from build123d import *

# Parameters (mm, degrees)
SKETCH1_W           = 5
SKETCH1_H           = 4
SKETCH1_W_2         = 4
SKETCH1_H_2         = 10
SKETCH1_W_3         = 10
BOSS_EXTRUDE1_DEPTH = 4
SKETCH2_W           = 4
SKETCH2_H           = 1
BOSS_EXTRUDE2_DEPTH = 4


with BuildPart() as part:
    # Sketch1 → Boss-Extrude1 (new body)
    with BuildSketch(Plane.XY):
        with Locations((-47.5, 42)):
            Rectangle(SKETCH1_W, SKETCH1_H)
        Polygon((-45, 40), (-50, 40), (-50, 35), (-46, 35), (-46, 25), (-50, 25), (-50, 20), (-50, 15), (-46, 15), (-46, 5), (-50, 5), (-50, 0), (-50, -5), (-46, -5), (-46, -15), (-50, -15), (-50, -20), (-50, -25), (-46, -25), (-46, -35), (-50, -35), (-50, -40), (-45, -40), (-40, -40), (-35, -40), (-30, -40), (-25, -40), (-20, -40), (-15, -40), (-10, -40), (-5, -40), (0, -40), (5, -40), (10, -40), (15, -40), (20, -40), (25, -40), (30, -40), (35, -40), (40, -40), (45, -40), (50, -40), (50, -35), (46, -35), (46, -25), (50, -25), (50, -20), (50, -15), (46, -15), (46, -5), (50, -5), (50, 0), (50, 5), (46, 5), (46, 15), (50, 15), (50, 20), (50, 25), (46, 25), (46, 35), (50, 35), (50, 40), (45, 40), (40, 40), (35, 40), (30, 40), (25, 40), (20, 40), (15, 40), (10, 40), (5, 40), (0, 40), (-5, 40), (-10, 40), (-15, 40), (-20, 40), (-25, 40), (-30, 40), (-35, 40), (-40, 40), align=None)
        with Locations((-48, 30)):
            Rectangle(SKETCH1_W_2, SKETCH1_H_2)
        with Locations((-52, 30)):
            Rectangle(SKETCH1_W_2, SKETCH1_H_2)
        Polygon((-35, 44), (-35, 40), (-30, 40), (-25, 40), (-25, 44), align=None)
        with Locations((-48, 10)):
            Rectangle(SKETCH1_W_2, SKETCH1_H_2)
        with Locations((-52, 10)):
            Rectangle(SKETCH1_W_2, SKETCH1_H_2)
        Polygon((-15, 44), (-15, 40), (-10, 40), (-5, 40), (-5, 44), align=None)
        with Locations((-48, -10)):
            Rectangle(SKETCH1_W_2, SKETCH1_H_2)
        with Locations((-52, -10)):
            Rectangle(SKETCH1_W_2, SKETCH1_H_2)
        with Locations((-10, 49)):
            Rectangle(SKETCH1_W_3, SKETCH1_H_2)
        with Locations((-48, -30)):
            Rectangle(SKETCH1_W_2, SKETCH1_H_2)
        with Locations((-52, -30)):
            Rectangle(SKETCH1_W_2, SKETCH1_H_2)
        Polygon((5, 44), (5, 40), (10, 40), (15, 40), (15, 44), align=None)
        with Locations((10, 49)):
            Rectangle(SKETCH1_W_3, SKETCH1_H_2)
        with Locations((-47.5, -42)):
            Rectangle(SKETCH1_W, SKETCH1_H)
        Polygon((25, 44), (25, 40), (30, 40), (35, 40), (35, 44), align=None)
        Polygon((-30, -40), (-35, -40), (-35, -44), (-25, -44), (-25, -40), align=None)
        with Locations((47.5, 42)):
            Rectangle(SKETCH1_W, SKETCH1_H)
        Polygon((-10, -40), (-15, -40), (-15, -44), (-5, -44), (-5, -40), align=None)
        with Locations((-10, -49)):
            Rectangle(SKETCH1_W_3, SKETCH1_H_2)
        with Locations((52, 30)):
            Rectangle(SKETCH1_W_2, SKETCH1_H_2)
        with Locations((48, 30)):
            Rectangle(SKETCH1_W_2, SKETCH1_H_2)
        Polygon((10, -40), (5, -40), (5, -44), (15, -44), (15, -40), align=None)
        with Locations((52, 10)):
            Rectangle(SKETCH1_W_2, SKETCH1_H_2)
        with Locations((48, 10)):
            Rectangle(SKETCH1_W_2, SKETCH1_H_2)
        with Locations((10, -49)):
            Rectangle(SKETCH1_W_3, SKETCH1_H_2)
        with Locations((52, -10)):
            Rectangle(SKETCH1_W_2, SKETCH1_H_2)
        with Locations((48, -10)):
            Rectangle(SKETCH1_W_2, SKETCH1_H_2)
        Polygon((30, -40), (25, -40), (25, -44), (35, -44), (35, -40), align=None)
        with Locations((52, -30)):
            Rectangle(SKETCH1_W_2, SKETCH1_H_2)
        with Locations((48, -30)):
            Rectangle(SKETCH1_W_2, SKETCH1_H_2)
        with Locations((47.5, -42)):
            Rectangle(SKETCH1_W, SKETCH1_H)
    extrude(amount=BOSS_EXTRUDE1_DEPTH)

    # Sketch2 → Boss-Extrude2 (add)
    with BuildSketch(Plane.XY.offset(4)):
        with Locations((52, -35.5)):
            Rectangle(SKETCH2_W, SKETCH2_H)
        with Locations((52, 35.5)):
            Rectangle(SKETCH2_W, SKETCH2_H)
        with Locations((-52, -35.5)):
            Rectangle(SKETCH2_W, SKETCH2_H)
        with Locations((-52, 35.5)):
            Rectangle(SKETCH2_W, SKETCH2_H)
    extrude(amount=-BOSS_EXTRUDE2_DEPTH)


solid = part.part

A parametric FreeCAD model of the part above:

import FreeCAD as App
import Part
import Sketcher

V = App.Vector
Q = App.Units.Quantity

doc = App.newDocument("Part")
body = doc.addObject("PartDesign::Body", "Body")

sketch1 = body.newObject("Sketcher::SketchObject", "Sketch")
sketch1.AttachmentSupport = (doc.getObject("XY_Plane"), [""])
sketch1.MapMode = "FlatFace"
sketch1.addGeometry([
    Part.LineSegment(V(-50, 44, 0), V(-50, 35, 0)),
    Part.LineSegment(V(-50, 35, 0), V(-54, 35, 0)),
    Part.LineSegment(V(-54, 35, 0), V(-54, 25, 0)),
    Part.LineSegment(V(-54, 25, 0), V(-50, 25, 0)),
    Part.LineSegment(V(-50, 25, 0), V(-50, 15, 0)),
    Part.LineSegment(V(-50, 15, 0), V(-54, 15, 0)),
    Part.LineSegment(V(-54, 15, 0), V(-54, 5, 0)),
    Part.LineSegment(V(-54, 5, 0), V(-50, 5, 0)),
    Part.LineSegment(V(-50, 5, 0), V(-50, -5, 0)),
    Part.LineSegment(V(-50, -5, 0), V(-54, -5, 0)),
    Part.LineSegment(V(-54, -5, 0), V(-54, -15, 0)),
    Part.LineSegment(V(-54, -15, 0), V(-50, -15, 0)),
    Part.LineSegment(V(-50, -15, 0), V(-50, -25, 0)),
    Part.LineSegment(V(-50, -25, 0), V(-54, -25, 0)),
    Part.LineSegment(V(-54, -25, 0), V(-54, -35, 0)),
    Part.LineSegment(V(-54, -35, 0), V(-50, -35, 0)),
    Part.LineSegment(V(-50, -35, 0), V(-50, -44, 0)),
    Part.LineSegment(V(-50, -44, 0), V(-45, -44, 0)),
    Part.LineSegment(V(-45, -44, 0), V(-45, -40, 0)),
    Part.LineSegment(V(-45, -40, 0), V(-35, -40, 0)),
    Part.LineSegment(V(-35, -40, 0), V(-35, -44, 0)),
    Part.LineSegment(V(-35, -44, 0), V(-25, -44, 0)),
    Part.LineSegment(V(-25, -44, 0), V(-25, -40, 0)),
    Part.LineSegment(V(-25, -40, 0), V(-15, -40, 0)),
    Part.LineSegment(V(-15, -40, 0), V(-15, -54, 0)),
    Part.LineSegment(V(-15, -54, 0), V(-5, -54, 0)),
    Part.LineSegment(V(-5, -54, 0), V(-5, -40, 0)),
    Part.LineSegment(V(-5, -40, 0), V(5, -40, 0)),
    Part.LineSegment(V(5, -40, 0), V(5, -54, 0)),
    Part.LineSegment(V(5, -54, 0), V(15, -54, 0)),
    Part.LineSegment(V(15, -54, 0), V(15, -40, 0)),
    Part.LineSegment(V(15, -40, 0), V(25, -40, 0)),
    Part.LineSegment(V(25, -40, 0), V(25, -44, 0)),
    Part.LineSegment(V(25, -44, 0), V(35, -44, 0)),
    Part.LineSegment(V(35, -44, 0), V(35, -40, 0)),
    Part.LineSegment(V(35, -40, 0), V(45, -40, 0)),
    Part.LineSegment(V(45, -40, 0), V(45, -44, 0)),
    Part.LineSegment(V(45, -44, 0), V(50, -44, 0)),
    Part.LineSegment(V(50, -44, 0), V(50, -35, 0)),
    Part.LineSegment(V(50, -35, 0), V(54, -35, 0)),
    Part.LineSegment(V(54, -35, 0), V(54, -25, 0)),
    Part.LineSegment(V(54, -25, 0), V(50, -25, 0)),
    Part.LineSegment(V(50, -25, 0), V(50, -15, 0)),
    Part.LineSegment(V(50, -15, 0), V(54, -15, 0)),
    Part.LineSegment(V(54, -15, 0), V(54, -5, 0)),
    Part.LineSegment(V(54, -5, 0), V(50, -5, 0)),
    Part.LineSegment(V(50, -5, 0), V(50, 5, 0)),
    Part.LineSegment(V(50, 5, 0), V(54, 5, 0)),
    Part.LineSegment(V(54, 5, 0), V(54, 15, 0)),
    Part.LineSegment(V(54, 15, 0), V(50, 15, 0)),
    Part.LineSegment(V(50, 15, 0), V(50, 25, 0)),
    Part.LineSegment(V(50, 25, 0), V(54, 25, 0)),
    Part.LineSegment(V(54, 25, 0), V(54, 35, 0)),
    Part.LineSegment(V(54, 35, 0), V(50, 35, 0)),
    Part.LineSegment(V(50, 35, 0), V(50, 44, 0)),
    Part.LineSegment(V(50, 44, 0), V(45, 44, 0)),
    Part.LineSegment(V(45, 44, 0), V(45, 40, 0)),
    Part.LineSegment(V(45, 40, 0), V(35, 40, 0)),
    Part.LineSegment(V(35, 40, 0), V(35, 44, 0)),
    Part.LineSegment(V(35, 44, 0), V(25, 44, 0)),
    Part.LineSegment(V(25, 44, 0), V(25, 40, 0)),
    Part.LineSegment(V(25, 40, 0), V(15, 40, 0)),
    Part.LineSegment(V(15, 40, 0), V(15, 54, 0)),
    Part.LineSegment(V(15, 54, 0), V(5, 54, 0)),
    Part.LineSegment(V(5, 54, 0), V(5, 40, 0)),
    Part.LineSegment(V(5, 40, 0), V(-5, 40, 0)),
    Part.LineSegment(V(-5, 40, 0), V(-5, 54, 0)),
    Part.LineSegment(V(-5, 54, 0), V(-15, 54, 0)),
    Part.LineSegment(V(-15, 54, 0), V(-15, 40, 0)),
    Part.LineSegment(V(-15, 40, 0), V(-25, 40, 0)),
    Part.LineSegment(V(-25, 40, 0), V(-25, 44, 0)),
    Part.LineSegment(V(-25, 44, 0), V(-35, 44, 0)),
    Part.LineSegment(V(-35, 44, 0), V(-35, 40, 0)),
    Part.LineSegment(V(-35, 40, 0), V(-45, 40, 0)),
    Part.LineSegment(V(-45, 40, 0), V(-45, 44, 0)),
    Part.LineSegment(V(-45, 44, 0), V(-50, 44, 0)),
], False)
sketch1.addConstraint([
    Sketcher.Constraint("Coincident", 0, 2, 1, 1),
    Sketcher.Constraint("Coincident", 1, 2, 2, 1),
    Sketcher.Constraint("Coincident", 2, 2, 3, 1),
    Sketcher.Constraint("Coincident", 3, 2, 4, 1),
    Sketcher.Constraint("Coincident", 4, 2, 5, 1),
    Sketcher.Constraint("Coincident", 5, 2, 6, 1),
    Sketcher.Constraint("Coincident", 6, 2, 7, 1),
    Sketcher.Constraint("Coincident", 7, 2, 8, 1),
    Sketcher.Constraint("Coincident", 8, 2, 9, 1),
    Sketcher.Constraint("Coincident", 9, 2, 10, 1),
    Sketcher.Constraint("Coincident", 10, 2, 11, 1),
    Sketcher.Constraint("Coincident", 11, 2, 12, 1),
    Sketcher.Constraint("Coincident", 12, 2, 13, 1),
    Sketcher.Constraint("Coincident", 13, 2, 14, 1),
    Sketcher.Constraint("Coincident", 14, 2, 15, 1),
    Sketcher.Constraint("Coincident", 15, 2, 16, 1),
    Sketcher.Constraint("Coincident", 16, 2, 17, 1),
    Sketcher.Constraint("Coincident", 17, 2, 18, 1),
    Sketcher.Constraint("Coincident", 18, 2, 19, 1),
    Sketcher.Constraint("Coincident", 19, 2, 20, 1),
    Sketcher.Constraint("Coincident", 20, 2, 21, 1),
    Sketcher.Constraint("Coincident", 21, 2, 22, 1),
    Sketcher.Constraint("Coincident", 22, 2, 23, 1),
    Sketcher.Constraint("Coincident", 23, 2, 24, 1),
    Sketcher.Constraint("Coincident", 24, 2, 25, 1),
    Sketcher.Constraint("Coincident", 25, 2, 26, 1),
    Sketcher.Constraint("Coincident", 26, 2, 27, 1),
    Sketcher.Constraint("Coincident", 27, 2, 28, 1),
    Sketcher.Constraint("Coincident", 28, 2, 29, 1),
    Sketcher.Constraint("Coincident", 29, 2, 30, 1),
    Sketcher.Constraint("Coincident", 30, 2, 31, 1),
    Sketcher.Constraint("Coincident", 31, 2, 32, 1),
    Sketcher.Constraint("Coincident", 32, 2, 33, 1),
    Sketcher.Constraint("Coincident", 33, 2, 34, 1),
    Sketcher.Constraint("Coincident", 34, 2, 35, 1),
    Sketcher.Constraint("Coincident", 35, 2, 36, 1),
    Sketcher.Constraint("Coincident", 36, 2, 37, 1),
    Sketcher.Constraint("Coincident", 37, 2, 38, 1),
    Sketcher.Constraint("Coincident", 38, 2, 39, 1),
    Sketcher.Constraint("Coincident", 39, 2, 40, 1),
    Sketcher.Constraint("Coincident", 40, 2, 41, 1),
    Sketcher.Constraint("Coincident", 41, 2, 42, 1),
    Sketcher.Constraint("Coincident", 42, 2, 43, 1),
    Sketcher.Constraint("Coincident", 43, 2, 44, 1),
    Sketcher.Constraint("Coincident", 44, 2, 45, 1),
    Sketcher.Constraint("Coincident", 45, 2, 46, 1),
    Sketcher.Constraint("Coincident", 46, 2, 47, 1),
    Sketcher.Constraint("Coincident", 47, 2, 48, 1),
    Sketcher.Constraint("Coincident", 48, 2, 49, 1),
    Sketcher.Constraint("Coincident", 49, 2, 50, 1),
    Sketcher.Constraint("Coincident", 50, 2, 51, 1),
    Sketcher.Constraint("Coincident", 51, 2, 52, 1),
    Sketcher.Constraint("Coincident", 52, 2, 53, 1),
    Sketcher.Constraint("Coincident", 53, 2, 54, 1),
    Sketcher.Constraint("Coincident", 54, 2, 55, 1),
    Sketcher.Constraint("Coincident", 55, 2, 56, 1),
    Sketcher.Constraint("Coincident", 56, 2, 57, 1),
    Sketcher.Constraint("Coincident", 57, 2, 58, 1),
    Sketcher.Constraint("Coincident", 58, 2, 59, 1),
    Sketcher.Constraint("Coincident", 59, 2, 60, 1),
    Sketcher.Constraint("Coincident", 60, 2, 61, 1),
    Sketcher.Constraint("Coincident", 61, 2, 62, 1),
    Sketcher.Constraint("Coincident", 62, 2, 63, 1),
    Sketcher.Constraint("Coincident", 63, 2, 64, 1),
    Sketcher.Constraint("Coincident", 64, 2, 65, 1),
    Sketcher.Constraint("Coincident", 65, 2, 66, 1),
    Sketcher.Constraint("Coincident", 66, 2, 67, 1),
    Sketcher.Constraint("Coincident", 67, 2, 68, 1),
    Sketcher.Constraint("Coincident", 68, 2, 69, 1),
    Sketcher.Constraint("Coincident", 69, 2, 70, 1),
    Sketcher.Constraint("Coincident", 70, 2, 71, 1),
    Sketcher.Constraint("Coincident", 71, 2, 72, 1),
    Sketcher.Constraint("Coincident", 72, 2, 73, 1),
    Sketcher.Constraint("Coincident", 73, 2, 74, 1),
    Sketcher.Constraint("Coincident", 74, 2, 75, 1),
    Sketcher.Constraint("Coincident", 75, 2, 0, 1),
    Sketcher.Constraint("Vertical", 0),
    Sketcher.Constraint("Horizontal", 1),
    Sketcher.Constraint("Vertical", 2),
    Sketcher.Constraint("Horizontal", 3),
    Sketcher.Constraint("Vertical", 4),
    Sketcher.Constraint("Horizontal", 5),
    Sketcher.Constraint("Vertical", 6),
    Sketcher.Constraint("Horizontal", 7),
    Sketcher.Constraint("Vertical", 8),
    Sketcher.Constraint("Horizontal", 9),
    Sketcher.Constraint("Vertical", 10),
    Sketcher.Constraint("Horizontal", 11),
    Sketcher.Constraint("Vertical", 12),
    Sketcher.Constraint("Horizontal", 13),
    Sketcher.Constraint("Vertical", 14),
    Sketcher.Constraint("Horizontal", 15),
    Sketcher.Constraint("Vertical", 16),
    Sketcher.Constraint("Horizontal", 17),
    Sketcher.Constraint("Vertical", 18),
    Sketcher.Constraint("Horizontal", 19),
    Sketcher.Constraint("Vertical", 20),
    Sketcher.Constraint("Horizontal", 21),
    Sketcher.Constraint("Vertical", 22),
    Sketcher.Constraint("Horizontal", 23),
    Sketcher.Constraint("Vertical", 24),
    Sketcher.Constraint("Horizontal", 25),
    Sketcher.Constraint("Vertical", 26),
    Sketcher.Constraint("Horizontal", 27),
    Sketcher.Constraint("Vertical", 28),
    Sketcher.Constraint("Horizontal", 29),
    Sketcher.Constraint("Vertical", 30),
    Sketcher.Constraint("Horizontal", 31),
    Sketcher.Constraint("Vertical", 32),
    Sketcher.Constraint("Horizontal", 33),
    Sketcher.Constraint("Vertical", 34),
    Sketcher.Constraint("Horizontal", 35),
    Sketcher.Constraint("Vertical", 36),
    Sketcher.Constraint("Horizontal", 37),
    Sketcher.Constraint("Vertical", 38),
    Sketcher.Constraint("Horizontal", 39),
    Sketcher.Constraint("Vertical", 40),
    Sketcher.Constraint("Horizontal", 41),
    Sketcher.Constraint("Vertical", 42),
    Sketcher.Constraint("Horizontal", 43),
    Sketcher.Constraint("Vertical", 44),
    Sketcher.Constraint("Horizontal", 45),
    Sketcher.Constraint("Vertical", 46),
    Sketcher.Constraint("Horizontal", 47),
    Sketcher.Constraint("Vertical", 48),
    Sketcher.Constraint("Horizontal", 49),
    Sketcher.Constraint("Vertical", 50),
    Sketcher.Constraint("Horizontal", 51),
    Sketcher.Constraint("Vertical", 52),
    Sketcher.Constraint("Horizontal", 53),
    Sketcher.Constraint("Vertical", 54),
    Sketcher.Constraint("Horizontal", 55),
    Sketcher.Constraint("Vertical", 56),
    Sketcher.Constraint("Horizontal", 57),
    Sketcher.Constraint("Vertical", 58),
    Sketcher.Constraint("Horizontal", 59),
    Sketcher.Constraint("Vertical", 60),
    Sketcher.Constraint("Horizontal", 61),
    Sketcher.Constraint("Vertical", 62),
    Sketcher.Constraint("Horizontal", 63),
    Sketcher.Constraint("Vertical", 64),
    Sketcher.Constraint("Horizontal", 65),
    Sketcher.Constraint("Vertical", 66),
    Sketcher.Constraint("Horizontal", 67),
    Sketcher.Constraint("Vertical", 68),
    Sketcher.Constraint("Horizontal", 69),
    Sketcher.Constraint("Vertical", 70),
    Sketcher.Constraint("Horizontal", 71),
    Sketcher.Constraint("Vertical", 72),
    Sketcher.Constraint("Horizontal", 73),
    Sketcher.Constraint("Vertical", 74),
    Sketcher.Constraint("Horizontal", 75),
    Sketcher.Constraint("Symmetric", 0, 2, 38, 2, -1, 1),
    Sketcher.Constraint("Symmetric", 2, 2, 40, 2, -1, 1),
    Sketcher.Constraint("Symmetric", 4, 2, 42, 2, -1, 1),
    Sketcher.Constraint("Symmetric", 6, 2, 44, 2, -1, 1),
    Sketcher.Constraint("Symmetric", 8, 2, 46, 2, -1, 1),
    Sketcher.Constraint("Symmetric", 10, 2, 48, 2, -1, 1),
    Sketcher.Constraint("Symmetric", 12, 2, 50, 2, -1, 1),
    Sketcher.Constraint("Symmetric", 14, 2, 52, 2, -1, 1),
    Sketcher.Constraint("Symmetric", 16, 2, 54, 2, -1, 1),
    Sketcher.Constraint("Symmetric", 18, 2, 56, 2, -1, 1),
    Sketcher.Constraint("Symmetric", 20, 2, 58, 2, -1, 1),
    Sketcher.Constraint("Symmetric", 22, 2, 60, 2, -1, 1),
    Sketcher.Constraint("Symmetric", 24, 2, 62, 2, -1, 1),
    Sketcher.Constraint("Symmetric", 26, 2, 64, 2, -1, 1),
    Sketcher.Constraint("Symmetric", 28, 2, 66, 2, -1, 1),
    Sketcher.Constraint("Symmetric", 30, 2, 68, 2, -1, 1),
    Sketcher.Constraint("Symmetric", 32, 2, 70, 2, -1, 1),
    Sketcher.Constraint("Symmetric", 34, 2, 72, 2, -1, 1),
    Sketcher.Constraint("Symmetric", 36, 2, 74, 2, -1, 1),
    Sketcher.Constraint("Symmetric", 25, 2, 28, 2, -2),
    Sketcher.Constraint("Symmetric", 23, 2, 30, 2, -2),
    Sketcher.Constraint("Symmetric", 21, 2, 32, 2, -2),
    Sketcher.Constraint("Symmetric", 19, 2, 34, 2, -2),
    Sketcher.Constraint("Symmetric", 17, 2, 36, 2, -2),
    Sketcher.Constraint("Symmetric", 15, 2, 38, 2, -2),
    Sketcher.Constraint("Symmetric", 13, 2, 40, 2, -2),
    Sketcher.Constraint("Symmetric", 11, 2, 42, 2, -2),
    Sketcher.Constraint("Symmetric", 9, 2, 44, 2, -2),
    Sketcher.Constraint("Horizontal", 17, 2, 20, 2),
    Sketcher.Constraint("Horizontal", 19, 2, 22, 2),
    Sketcher.Constraint("Horizontal", 23, 2, 26, 2),
    Sketcher.Constraint("Vertical", 0, 2, 3, 2),
    Sketcher.Constraint("Vertical", 2, 2, 5, 2),
    Sketcher.Constraint("Vertical", 4, 2, 7, 2),
    Sketcher.Constraint("Equal", 19, 21),
    Sketcher.Constraint("Equal", 21, 23),
    Sketcher.Constraint("Equal", 23, 25),
    Sketcher.Constraint("Equal", 25, 27),
    Sketcher.Constraint("Equal", 73, 2),
    Sketcher.Constraint("Equal", 2, 4),
    Sketcher.Constraint("Equal", 4, 6),
    Sketcher.Constraint("Equal", 6, 8),
    Sketcher.Constraint("Equal", 53, 18),
    Sketcher.Constraint("DistanceX", 1, 2, 1, 1, Q("4 mm")),
    Sketcher.Constraint("DistanceX", 17, 1, 17, 2, Q("5 mm")),
    Sketcher.Constraint("DistanceX", 19, 1, 19, 2, Q("10 mm")),
    Sketcher.Constraint("DistanceY", 0, 2, 0, 1, Q("9 mm")),
    Sketcher.Constraint("DistanceY", 24, 2, 24, 1, Q("14 mm")),
])
pad1 = body.newObject("PartDesign::Pad", "Pad")
pad1.Profile = sketch1
pad1.Length = 4

sketch2 = body.newObject("Sketcher::SketchObject", "Sketch001")
sketch2.AttachmentSupport = (doc.getObject("XY_Plane"), [""])
sketch2.MapMode = "FlatFace"
sketch2.AttachmentOffset = App.Placement(V(0, 0, 4), App.Rotation())
sketch2.addGeometry([
    Part.LineSegment(V(50, -35, 0), V(50, -36, 0)),
    Part.LineSegment(V(50, -36, 0), V(54, -36, 0)),
    Part.LineSegment(V(54, -36, 0), V(54, -35, 0)),
    Part.LineSegment(V(54, -35, 0), V(50, -35, 0)),
    Part.LineSegment(V(50, 36, 0), V(50, 35, 0)),
    Part.LineSegment(V(50, 35, 0), V(54, 35, 0)),
    Part.LineSegment(V(54, 35, 0), V(54, 36, 0)),
    Part.LineSegment(V(54, 36, 0), V(50, 36, 0)),
    Part.LineSegment(V(-54, -35, 0), V(-54, -36, 0)),
    Part.LineSegment(V(-54, -36, 0), V(-50, -36, 0)),
    Part.LineSegment(V(-50, -36, 0), V(-50, -35, 0)),
    Part.LineSegment(V(-50, -35, 0), V(-54, -35, 0)),
    Part.LineSegment(V(-54, 36, 0), V(-54, 35, 0)),
    Part.LineSegment(V(-54, 35, 0), V(-50, 35, 0)),
    Part.LineSegment(V(-50, 35, 0), V(-50, 36, 0)),
    Part.LineSegment(V(-50, 36, 0), V(-54, 36, 0)),
], False)
sketch2.addConstraint([
    Sketcher.Constraint("Coincident", 0, 2, 1, 1),
    Sketcher.Constraint("Coincident", 1, 2, 2, 1),
    Sketcher.Constraint("Coincident", 2, 2, 3, 1),
    Sketcher.Constraint("Coincident", 3, 2, 0, 1),
    Sketcher.Constraint("Coincident", 4, 2, 5, 1),
    Sketcher.Constraint("Coincident", 5, 2, 6, 1),
    Sketcher.Constraint("Coincident", 6, 2, 7, 1),
    Sketcher.Constraint("Coincident", 7, 2, 4, 1),
    Sketcher.Constraint("Coincident", 8, 2, 9, 1),
    Sketcher.Constraint("Coincident", 9, 2, 10, 1),
    Sketcher.Constraint("Coincident", 10, 2, 11, 1),
    Sketcher.Constraint("Coincident", 11, 2, 8, 1),
    Sketcher.Constraint("Coincident", 12, 2, 13, 1),
    Sketcher.Constraint("Coincident", 13, 2, 14, 1),
    Sketcher.Constraint("Coincident", 14, 2, 15, 1),
    Sketcher.Constraint("Coincident", 15, 2, 12, 1),
    Sketcher.Constraint("Vertical", 0),
    Sketcher.Constraint("Horizontal", 1),
    Sketcher.Constraint("Vertical", 2),
    Sketcher.Constraint("Horizontal", 3),
    Sketcher.Constraint("Vertical", 4),
    Sketcher.Constraint("Horizontal", 5),
    Sketcher.Constraint("Vertical", 6),
    Sketcher.Constraint("Horizontal", 7),
    Sketcher.Constraint("Vertical", 8),
    Sketcher.Constraint("Horizontal", 9),
    Sketcher.Constraint("Vertical", 10),
    Sketcher.Constraint("Horizontal", 11),
    Sketcher.Constraint("Vertical", 12),
    Sketcher.Constraint("Horizontal", 13),
    Sketcher.Constraint("Vertical", 14),
    Sketcher.Constraint("Horizontal", 15),
    Sketcher.Constraint("Symmetric", 6, 2, 8, 2, -1, 1),
    Sketcher.Constraint("Symmetric", 4, 2, 10, 2, -1, 1),
    Sketcher.Constraint("Symmetric", 2, 2, 12, 2, -1, 1),
    Sketcher.Constraint("Symmetric", 0, 2, 14, 2, -1, 1),
    Sketcher.Constraint("Symmetric", 1, 2, 8, 2, -2),
    Sketcher.Constraint("Symmetric", 3, 2, 10, 2, -2),
    Sketcher.Constraint("DistanceX", 1, 1, 1, 2, Q("4 mm")),
    Sketcher.Constraint("DistanceY", 0, 2, 0, 1, Q("1 mm")),
    Sketcher.Constraint("DistanceX", -1, 1, 0, 2, Q("50 mm")),
    Sketcher.Constraint("DistanceY", 0, 2, -1, 1, Q("36 mm")),
])
pad2 = body.newObject("PartDesign::Pad", "Pad001")
pad2.Profile = sketch2
pad2.Length = 4
pad2.Reversed = True

doc.recompute()
